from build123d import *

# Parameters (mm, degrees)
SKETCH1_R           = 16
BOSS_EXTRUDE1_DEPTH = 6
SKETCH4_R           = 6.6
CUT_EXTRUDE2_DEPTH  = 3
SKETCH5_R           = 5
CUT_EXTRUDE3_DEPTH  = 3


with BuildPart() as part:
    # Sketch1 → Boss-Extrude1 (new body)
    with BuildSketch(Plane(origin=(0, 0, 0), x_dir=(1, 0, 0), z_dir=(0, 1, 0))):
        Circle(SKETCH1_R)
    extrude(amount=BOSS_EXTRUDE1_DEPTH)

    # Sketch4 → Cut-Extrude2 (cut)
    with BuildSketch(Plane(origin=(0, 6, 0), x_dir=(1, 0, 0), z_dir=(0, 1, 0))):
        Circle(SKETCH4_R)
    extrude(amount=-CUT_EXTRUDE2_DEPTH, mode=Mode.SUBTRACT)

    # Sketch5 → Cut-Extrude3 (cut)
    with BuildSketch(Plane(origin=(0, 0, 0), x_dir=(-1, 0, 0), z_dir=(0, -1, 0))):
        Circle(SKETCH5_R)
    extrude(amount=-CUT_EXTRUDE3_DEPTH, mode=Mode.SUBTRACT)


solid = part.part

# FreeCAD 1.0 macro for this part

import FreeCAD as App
import Part
import Sketcher

V = App.Vector

doc = App.newDocument("Part")
body = doc.addObject("PartDesign::Body", "Body")

sketch1 = doc.addObject("Sketcher::SketchObject", "Sketch")
body.addObject(sketch1)
sketch1.AttachmentSupport = (doc.XZ_Plane, [""])
sketch1.MapMode = "FlatFace"
sketch1.addGeometry(Part.Circle(V(0, 0, 0), V(0, 0, 1), 16), False)
sketch1.addConstraint(Sketcher.Constraint("Coincident", 0, 3, -1, 1))
sketch1.addConstraint(Sketcher.Constraint("Diameter", 0, 32.0))
pad1 = doc.addObject("PartDesign::Pad", "Pad")
body.addObject(pad1)
pad1.Profile = sketch1
pad1.Length = 6
pad1.Reversed = True

sketch2 = doc.addObject("Sketcher::SketchObject", "Sketch001")
body.addObject(sketch2)
sketch2.AttachmentSupport = (doc.XZ_Plane, [""])
sketch2.MapMode = "FlatFace"
sketch2.AttachmentOffset = App.Placement(V(0, 0, -6), App.Rotation())
sketch2.addGeometry(Part.Circle(V(0, 0, 0), V(0, 0, 1), 7), False)
sketch2.addConstraint(Sketcher.Constraint("Coincident", 0, 3, -1, 1))
sketch2.addConstraint(Sketcher.Constraint("Diameter", 0, 13.2))
pocket1 = doc.addObject("PartDesign::Pocket", "Pocket")
body.addObject(pocket1)
pocket1.Profile = sketch2
pocket1.Length = 3
pocket1.Reversed = True

sketch3 = doc.addObject("Sketcher::SketchObject", "Sketch002")
body.addObject(sketch3)
sketch3.AttachmentSupport = (doc.XZ_Plane, [""])
sketch3.MapMode = "FlatFace"
sketch3.addGeometry(Part.Circle(V(0, 0, 0), V(0, 0, 1), 5), False)
sketch3.addConstraint(Sketcher.Constraint("Coincident", 0, 3, -1, 1))
sketch3.addConstraint(Sketcher.Constraint("Diameter", 0, 10.0))
pocket2 = doc.addObject("PartDesign::Pocket", "Pocket001")
body.addObject(pocket2)
pocket2.Profile = sketch3
pocket2.Length = 3

doc.recompute()
